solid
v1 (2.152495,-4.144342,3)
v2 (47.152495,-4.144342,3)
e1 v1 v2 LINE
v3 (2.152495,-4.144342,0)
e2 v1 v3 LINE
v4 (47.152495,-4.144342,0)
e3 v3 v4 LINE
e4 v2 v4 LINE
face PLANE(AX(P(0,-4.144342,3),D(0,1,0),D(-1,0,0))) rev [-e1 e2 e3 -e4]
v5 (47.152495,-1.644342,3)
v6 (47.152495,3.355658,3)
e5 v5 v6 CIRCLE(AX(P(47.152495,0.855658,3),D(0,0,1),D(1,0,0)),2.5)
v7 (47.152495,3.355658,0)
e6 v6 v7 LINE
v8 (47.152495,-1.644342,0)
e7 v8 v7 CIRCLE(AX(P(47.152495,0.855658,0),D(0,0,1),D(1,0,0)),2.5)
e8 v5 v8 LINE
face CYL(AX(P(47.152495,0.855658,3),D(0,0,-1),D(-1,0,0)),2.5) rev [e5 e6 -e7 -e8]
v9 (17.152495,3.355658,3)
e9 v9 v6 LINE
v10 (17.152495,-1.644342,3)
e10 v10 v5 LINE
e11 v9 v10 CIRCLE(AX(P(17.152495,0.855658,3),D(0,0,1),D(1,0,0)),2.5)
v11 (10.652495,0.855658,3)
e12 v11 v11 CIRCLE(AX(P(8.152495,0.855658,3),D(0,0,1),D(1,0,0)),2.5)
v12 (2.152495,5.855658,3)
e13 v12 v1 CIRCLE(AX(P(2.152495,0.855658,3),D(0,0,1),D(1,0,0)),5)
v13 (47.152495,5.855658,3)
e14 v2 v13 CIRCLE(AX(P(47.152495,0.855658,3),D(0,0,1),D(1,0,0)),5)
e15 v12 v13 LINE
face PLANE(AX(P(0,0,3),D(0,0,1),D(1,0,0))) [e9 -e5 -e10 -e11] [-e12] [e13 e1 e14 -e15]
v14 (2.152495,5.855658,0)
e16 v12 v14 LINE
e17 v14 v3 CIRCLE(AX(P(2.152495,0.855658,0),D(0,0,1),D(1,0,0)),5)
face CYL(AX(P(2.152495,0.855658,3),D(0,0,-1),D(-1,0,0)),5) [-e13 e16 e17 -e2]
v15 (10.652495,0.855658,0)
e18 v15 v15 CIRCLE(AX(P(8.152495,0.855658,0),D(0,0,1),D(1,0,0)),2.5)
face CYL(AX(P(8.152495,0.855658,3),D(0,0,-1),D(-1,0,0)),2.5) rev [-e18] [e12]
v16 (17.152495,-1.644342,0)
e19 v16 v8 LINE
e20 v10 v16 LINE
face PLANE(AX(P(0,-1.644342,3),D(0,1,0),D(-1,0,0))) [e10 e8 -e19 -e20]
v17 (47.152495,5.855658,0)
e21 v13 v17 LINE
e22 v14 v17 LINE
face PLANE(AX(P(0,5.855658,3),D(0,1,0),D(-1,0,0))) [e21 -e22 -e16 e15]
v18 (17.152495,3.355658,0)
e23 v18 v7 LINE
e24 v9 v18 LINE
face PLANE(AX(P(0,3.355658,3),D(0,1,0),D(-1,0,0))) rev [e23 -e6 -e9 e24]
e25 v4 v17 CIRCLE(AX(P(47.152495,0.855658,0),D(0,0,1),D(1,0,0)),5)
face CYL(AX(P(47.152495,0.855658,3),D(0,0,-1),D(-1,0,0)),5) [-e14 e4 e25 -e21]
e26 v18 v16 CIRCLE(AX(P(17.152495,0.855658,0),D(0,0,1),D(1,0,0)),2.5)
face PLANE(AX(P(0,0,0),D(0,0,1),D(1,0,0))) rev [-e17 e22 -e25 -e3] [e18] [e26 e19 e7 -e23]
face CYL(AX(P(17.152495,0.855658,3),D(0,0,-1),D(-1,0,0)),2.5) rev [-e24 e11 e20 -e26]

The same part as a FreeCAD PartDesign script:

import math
import FreeCAD as App
import Part
import Sketcher

doc = App.newDocument("Part")
params = doc.addObject("Spreadsheet::Sheet", "Params")
for row, (alias, value) in enumerate([
    ("sketch1_diameter", "5 mm"),
    ("sketch1_radius", "5 mm"),
    ("sketch1_width", "45 mm"),
    ("sketch1_width2", "30 mm"),
    ("pad1_length", "3 mm"),
], start=1):
    params.set(f"A{row}", alias)
    params.set(f"B{row}", "=" + value)
    params.setAlias(f"B{row}", alias)

body = doc.addObject("PartDesign::Body", "Body")

# Sketch on XY plane
sketch1 = doc.addObject("Sketcher::SketchObject", "Sketch")
body.addObject(sketch1)
sketch1.AttachmentSupport = (doc.XY_Plane, [""])
sketch1.MapMode = "FlatFace"
sketch1.addGeometry([
    Part.LineSegment(App.Vector(47.152495, 5.855658, 0), App.Vector(2.152495, 5.855658, 0)),  # 0
    Part.ArcOfCircle(Part.Circle(App.Vector(2.152495, 0.855658, 0), App.Vector(0, 0, 1), 5), math.radians(90), math.radians(270)),  # 1
    Part.LineSegment(App.Vector(2.152495, -4.144342, 0), App.Vector(47.152495, -4.144342, 0)),  # 2
    Part.ArcOfCircle(Part.Circle(App.Vector(47.152495, 0.855658, 0), App.Vector(0, 0, 1), 5), math.radians(-90), math.radians(90)),  # 3
    Part.LineSegment(App.Vector(17.152495, 3.355658, 0), App.Vector(47.152495, 3.355658, 0)),  # 4
    Part.ArcOfCircle(Part.Circle(App.Vector(47.152495, 0.855658, 0), App.Vector(0, 0, 1), 2.5), math.radians(-90), math.radians(90)),  # 5
    Part.LineSegment(App.Vector(47.152495, -1.644342, 0), App.Vector(17.152495, -1.644342, 0)),  # 6
    Part.ArcOfCircle(Part.Circle(App.Vector(17.152495, 0.855658, 0), App.Vector(0, 0, 1), 2.5), math.radians(90), math.radians(270)),  # 7
    Part.Circle(App.Vector(8.152495, 0.855658, 0), App.Vector(0, 0, 1), 2.5),  # 8
], False)
sketch1.addConstraint([
    Sketcher.Constraint("Tangent", 0, 2, 1, 1),
    Sketcher.Constraint("Tangent", 1, 2, 2, 1),
    Sketcher.Constraint("Tangent", 2, 2, 3, 1),
    Sketcher.Constraint("Tangent", 3, 2, 0, 1),
    Sketcher.Constraint("Tangent", 4, 2, 5, 2),
    Sketcher.Constraint("Tangent", 5, 1, 6, 1),
    Sketcher.Constraint("Tangent", 6, 2, 7, 2),
    Sketcher.Constraint("Tangent", 7, 1, 4, 1),
    Sketcher.Constraint("Horizontal", 0),
    Sketcher.Constraint("Horizontal", 2),
    Sketcher.Constraint("Horizontal", 4),
    Sketcher.Constraint("Horizontal", 6),
    Sketcher.Constraint("Coincident", 5, 3, 3, 3),
    Sketcher.Constraint("Equal", 7, 8),
    Sketcher.Constraint("Horizontal", 7, 3, 8, 3),
    Sketcher.Constraint("Diameter", 8, 5.0),
    Sketcher.Constraint("Radius", 1, 5.0),
    Sketcher.Constraint("DistanceX", 0, 2, 0, 1, 45.0),
    Sketcher.Constraint("DistanceX", 4, 1, 4, 2, 30.0),
    Sketcher.Constraint("DistanceX", 1, 3, 8, 3, 6.0),
    Sketcher.Constraint("DistanceX", -1, 1, 1, 3, 2.152495),
    Sketcher.Constraint("DistanceY", -1, 1, 1, 3, 0.855658),
])
sketch1.setExpression("Constraints[15]", "Params.sketch1_diameter")
sketch1.setExpression("Constraints[16]", "Params.sketch1_radius")
sketch1.setExpression("Constraints[17]", "Params.sketch1_width")
sketch1.setExpression("Constraints[18]", "Params.sketch1_width2")
pad1 = doc.addObject("PartDesign::Pad", "Pad")
body.addObject(pad1)
pad1.Profile = sketch1
pad1.setExpression("Length", "Params.pad1_length")

doc.recompute()
